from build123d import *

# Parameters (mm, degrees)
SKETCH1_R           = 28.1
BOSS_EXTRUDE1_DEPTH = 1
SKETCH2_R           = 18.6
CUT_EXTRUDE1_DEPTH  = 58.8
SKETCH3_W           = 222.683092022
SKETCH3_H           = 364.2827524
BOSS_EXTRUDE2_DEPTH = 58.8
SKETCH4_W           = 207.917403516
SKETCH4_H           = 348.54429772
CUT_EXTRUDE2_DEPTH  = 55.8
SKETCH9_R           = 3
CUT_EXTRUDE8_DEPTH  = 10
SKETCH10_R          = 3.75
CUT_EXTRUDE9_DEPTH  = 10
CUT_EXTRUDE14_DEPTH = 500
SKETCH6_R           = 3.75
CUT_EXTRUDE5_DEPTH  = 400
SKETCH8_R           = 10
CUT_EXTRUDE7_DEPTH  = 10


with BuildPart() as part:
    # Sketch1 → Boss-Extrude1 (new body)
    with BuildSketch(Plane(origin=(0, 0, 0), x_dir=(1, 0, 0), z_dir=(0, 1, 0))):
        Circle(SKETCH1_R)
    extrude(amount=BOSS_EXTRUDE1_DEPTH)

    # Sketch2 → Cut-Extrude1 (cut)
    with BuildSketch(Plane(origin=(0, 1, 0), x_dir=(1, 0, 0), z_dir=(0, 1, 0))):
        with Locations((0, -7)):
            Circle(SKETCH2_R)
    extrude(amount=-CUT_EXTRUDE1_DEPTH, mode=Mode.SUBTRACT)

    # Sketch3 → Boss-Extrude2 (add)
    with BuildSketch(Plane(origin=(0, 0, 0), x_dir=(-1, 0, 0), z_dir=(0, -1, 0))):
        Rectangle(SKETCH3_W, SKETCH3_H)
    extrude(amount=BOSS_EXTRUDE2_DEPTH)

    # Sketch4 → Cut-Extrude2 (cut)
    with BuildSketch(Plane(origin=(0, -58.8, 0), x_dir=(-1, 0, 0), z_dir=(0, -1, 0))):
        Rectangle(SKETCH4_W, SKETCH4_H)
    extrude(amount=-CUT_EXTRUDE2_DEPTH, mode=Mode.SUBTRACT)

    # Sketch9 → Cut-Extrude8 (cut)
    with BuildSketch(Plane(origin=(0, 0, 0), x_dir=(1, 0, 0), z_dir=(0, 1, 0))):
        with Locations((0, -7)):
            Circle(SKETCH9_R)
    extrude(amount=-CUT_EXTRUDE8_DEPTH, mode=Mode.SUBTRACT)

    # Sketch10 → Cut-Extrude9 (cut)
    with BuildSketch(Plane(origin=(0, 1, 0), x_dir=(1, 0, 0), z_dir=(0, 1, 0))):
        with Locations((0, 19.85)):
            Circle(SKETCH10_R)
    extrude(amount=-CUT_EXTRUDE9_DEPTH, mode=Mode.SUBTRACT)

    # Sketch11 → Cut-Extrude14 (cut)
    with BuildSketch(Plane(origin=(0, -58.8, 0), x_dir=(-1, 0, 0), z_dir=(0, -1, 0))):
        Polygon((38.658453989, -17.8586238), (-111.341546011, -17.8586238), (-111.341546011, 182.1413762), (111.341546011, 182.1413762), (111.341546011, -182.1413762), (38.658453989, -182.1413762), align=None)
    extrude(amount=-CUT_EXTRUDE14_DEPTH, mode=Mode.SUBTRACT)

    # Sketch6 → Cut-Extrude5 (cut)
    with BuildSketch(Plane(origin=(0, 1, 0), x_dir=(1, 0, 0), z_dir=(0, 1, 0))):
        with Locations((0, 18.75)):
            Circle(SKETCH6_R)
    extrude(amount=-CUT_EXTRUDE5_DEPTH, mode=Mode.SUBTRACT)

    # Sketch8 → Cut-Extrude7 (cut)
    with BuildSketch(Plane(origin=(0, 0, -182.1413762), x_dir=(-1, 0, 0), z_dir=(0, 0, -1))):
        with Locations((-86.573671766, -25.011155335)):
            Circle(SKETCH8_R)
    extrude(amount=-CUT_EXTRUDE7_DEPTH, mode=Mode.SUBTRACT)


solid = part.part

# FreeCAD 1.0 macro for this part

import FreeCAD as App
import Part
import Sketcher
Q = App.Units.Quantity


def add_polygon(sketch, points):
    """Adds a closed chain of lines whose ends are joined by coincident constraints."""
    first, n = sketch.GeometryCount, len(points)
    for a, b in zip(points, points[1:] + points[:1]):
        sketch.addGeometry(Part.LineSegment(App.Vector(*a, 0), App.Vector(*b, 0)), False)
    for i in range(n):
        sketch.addConstraint(Sketcher.Constraint("Coincident", first + i, 2, first + (i + 1) % n, 1))

doc = App.newDocument("Part")
body = doc.addObject("PartDesign::Body", "Body")

sketch1 = body.newObject("Sketcher::SketchObject", "Sketch")
sketch1.AttachmentSupport = (doc.getObject("XZ_Plane"), [""])
sketch1.MapMode = "FlatFace"
sketch1.addGeometry(Part.Circle(App.Vector(0, 0, 0), App.Vector(0, 0, 1), 28), False)
sketch1.addConstraint(Sketcher.Constraint("Coincident", 0, 3, -1, 1))
sketch1.addConstraint(Sketcher.Constraint("Diameter", 0, Q("56.2 mm")))
pad1 = body.newObject("PartDesign::Pad", "Pad")
pad1.Profile = sketch1
pad1.Length = 1
pad1.Reversed = True

sketch2 = body.newObject("Sketcher::SketchObject", "Sketch001")
sketch2.AttachmentSupport = (doc.getObject("XZ_Plane"), [""])
sketch2.MapMode = "FlatFace"
sketch2.AttachmentOffset = App.Placement(App.Vector(0, 0, -1), App.Rotation())
sketch2.addGeometry(Part.Circle(App.Vector(0, 7, 0), App.Vector(0, 0, 1), 19), False)
sketch2.addConstraint(Sketcher.Constraint("PointOnObject", 0, 3, -2))
sketch2.addConstraint(Sketcher.Constraint("Diameter", 0, Q("37.2 mm")))
sketch2.addConstraint(Sketcher.Constraint("DistanceY", -1, 1, 0, 3, Q("7 mm")))
pocket1 = body.newObject("PartDesign::Pocket", "Pocket")
pocket1.Profile = sketch2
pocket1.Length = 58.8
pocket1.Reversed = True

sketch3 = body.newObject("Sketcher::SketchObject", "Sketch002")
sketch3.AttachmentSupport = (doc.getObject("XZ_Plane"), [""])
sketch3.MapMode = "FlatFace"
add_polygon(sketch3, [(111, -182), (111, 182), (-111, 182), (-111, -182)])
sketch3.addConstraint(Sketcher.Constraint("Vertical", 0))
sketch3.addConstraint(Sketcher.Constraint("Horizontal", 1))
sketch3.addConstraint(Sketcher.Constraint("Vertical", 2))
sketch3.addConstraint(Sketcher.Constraint("Horizontal", 3))
sketch3.addConstraint(Sketcher.Constraint("Symmetric", 0, 2, 2, 2, -1, 1))
sketch3.addConstraint(Sketcher.Constraint("DistanceX", 1, 2, 1, 1, Q("222.683092 mm")))
sketch3.addConstraint(Sketcher.Constraint("DistanceY", 0, 1, 0, 2, Q("364.282752 mm")))
pad2 = body.newObject("PartDesign::Pad", "Pad001")
pad2.Profile = sketch3
pad2.Length = 58.8

sketch4 = body.newObject("Sketcher::SketchObject", "Sketch003")
sketch4.AttachmentSupport = (doc.getObject("XZ_Plane"), [""])
sketch4.MapMode = "FlatFace"
sketch4.AttachmentOffset = App.Placement(App.Vector(0, 0, 58.8), App.Rotation())
add_polygon(sketch4, [(104, -174), (104, 174), (-104, 174), (-104, -174)])
sketch4.addConstraint(Sketcher.Constraint("Vertical", 0))
sketch4.addConstraint(Sketcher.Constraint("Horizontal", 1))
sketch4.addConstraint(Sketcher.Constraint("Vertical", 2))
sketch4.addConstraint(Sketcher.Constraint("Horizontal", 3))
sketch4.addConstraint(Sketcher.Constraint("Symmetric", 0, 2, 2, 2, -1, 1))
sketch4.addConstraint(Sketcher.Constraint("DistanceX", -1, 1, 0, 2, Q("103.958702 mm")))
sketch4.addConstraint(Sketcher.Constraint("DistanceY", 0, 1, 0, 2, Q("348.544298 mm")))
pocket2 = body.newObject("PartDesign::Pocket", "Pocket001")
pocket2.Profile = sketch4
pocket2.Length = 55.8

sketch5 = body.newObject("Sketcher::SketchObject", "Sketch004")
sketch5.AttachmentSupport = (doc.getObject("XZ_Plane"), [""])
sketch5.MapMode = "FlatFace"
sketch5.addGeometry(Part.Circle(App.Vector(0, 7, 0), App.Vector(0, 0, 1), 3), False)
sketch5.addConstraint(Sketcher.Constraint("PointOnObject", 0, 3, -2))
sketch5.addConstraint(Sketcher.Constraint("Diameter", 0, Q("6 mm")))
sketch5.addConstraint(Sketcher.Constraint("DistanceY", -1, 1, 0, 3, Q("7 mm")))
pocket3 = body.newObject("PartDesign::Pocket", "Pocket002")
pocket3.Profile = sketch5
pocket3.Length = 10
pocket3.Reversed = True

sketch6 = body.newObject("Sketcher::SketchObject", "Sketch005")
sketch6.AttachmentSupport = (doc.getObject("XZ_Plane"), [""])
sketch6.MapMode = "FlatFace"
sketch6.AttachmentOffset = App.Placement(App.Vector(0, 0, -1), App.Rotation())
sketch6.addGeometry(Part.Circle(App.Vector(0, -19.9, 0), App.Vector(0, 0, 1), 3.8), False)
sketch6.addConstraint(Sketcher.Constraint("PointOnObject", 0, 3, -2))
sketch6.addConstraint(Sketcher.Constraint("Diameter", 0, Q("7.5 mm")))
sketch6.addConstraint(Sketcher.Constraint("DistanceY", 0, 3, -1, 1, Q("19.85 mm")))
pocket4 = body.newObject("PartDesign::Pocket", "Pocket003")
pocket4.Profile = sketch6
pocket4.Length = 10
pocket4.Reversed = True

sketch7 = body.newObject("Sketcher::SketchObject", "Sketch006")
sketch7.AttachmentSupport = (doc.getObject("XZ_Plane"), [""])
sketch7.MapMode = "FlatFace"
sketch7.AttachmentOffset = App.Placement(App.Vector(0, 0, 58.8), App.Rotation())
add_polygon(sketch7, [(111, 18), (-39, 18), (-39, 182), (-111, 182), (-111, -182), (111, -182)])
sketch7.addConstraint(Sketcher.Constraint("Horizontal", 0))
sketch7.addConstraint(Sketcher.Constraint("Vertical", 1))
sketch7.addConstraint(Sketcher.Constraint("Horizontal", 2))
sketch7.addConstraint(Sketcher.Constraint("Vertical", 3))
sketch7.addConstraint(Sketcher.Constraint("Horizontal", 4))
sketch7.addConstraint(Sketcher.Constraint("Vertical", 5))
sketch7.addConstraint(Sketcher.Constraint("Symmetric", 2, 2, 4, 2, -1, 1))
sketch7.addConstraint(Sketcher.Constraint("DistanceX", 0, 2, 0, 1, Q("150 mm")))
sketch7.addConstraint(Sketcher.Constraint("DistanceY", 5, 1, 5, 2, Q("200 mm")))
sketch7.addConstraint(Sketcher.Constraint("DistanceX", 2, 2, 2, 1, Q("72.683092 mm")))
sketch7.addConstraint(Sketcher.Constraint("DistanceY", 1, 1, 1, 2, Q("164.282752 mm")))
pocket5 = body.newObject("PartDesign::Pocket", "Pocket004")
pocket5.Profile = sketch7
pocket5.Length = 500

sketch8 = body.newObject("Sketcher::SketchObject", "Sketch007")
sketch8.AttachmentSupport = (doc.getObject("XZ_Plane"), [""])
sketch8.MapMode = "FlatFace"
sketch8.AttachmentOffset = App.Placement(App.Vector(0, 0, -1), App.Rotation())
sketch8.addGeometry(Part.Circle(App.Vector(0, -18.8, 0), App.Vector(0, 0, 1), 3.8), False)
sketch8.addConstraint(Sketcher.Constraint("PointOnObject", 0, 3, -2))
sketch8.addConstraint(Sketcher.Constraint("Diameter", 0, Q("7.5 mm")))
sketch8.addConstraint(Sketcher.Constraint("DistanceY", 0, 3, -1, 1, Q("18.75 mm")))
pocket6 = body.newObject("PartDesign::Pocket", "Pocket005")
pocket6.Profile = sketch8
pocket6.Length = 400
pocket6.Reversed = True

sketch9 = body.newObject("Sketcher::SketchObject", "Sketch008")
sketch9.AttachmentSupport = (doc.getObject("XY_Plane"), [""])
sketch9.MapMode = "FlatFace"
sketch9.AttachmentOffset = App.Placement(App.Vector(0, 0, -182.141376), App.Rotation())
sketch9.addGeometry(Part.Circle(App.Vector(87, -25, 0), App.Vector(0, 0, 1), 10), False)
sketch9.addConstraint(Sketcher.Constraint("Diameter", 0, Q("20 mm")))
sketch9.addConstraint(Sketcher.Constraint("DistanceX", -1, 1, 0, 3, Q("86.573672 mm")))
sketch9.addConstraint(Sketcher.Constraint("DistanceY", 0, 3, -1, 1, Q("25.011155 mm")))
pocket7 = body.newObject("PartDesign::Pocket", "Pocket006")
pocket7.Profile = sketch9
pocket7.Length = 10
pocket7.Reversed = True

doc.recompute()
